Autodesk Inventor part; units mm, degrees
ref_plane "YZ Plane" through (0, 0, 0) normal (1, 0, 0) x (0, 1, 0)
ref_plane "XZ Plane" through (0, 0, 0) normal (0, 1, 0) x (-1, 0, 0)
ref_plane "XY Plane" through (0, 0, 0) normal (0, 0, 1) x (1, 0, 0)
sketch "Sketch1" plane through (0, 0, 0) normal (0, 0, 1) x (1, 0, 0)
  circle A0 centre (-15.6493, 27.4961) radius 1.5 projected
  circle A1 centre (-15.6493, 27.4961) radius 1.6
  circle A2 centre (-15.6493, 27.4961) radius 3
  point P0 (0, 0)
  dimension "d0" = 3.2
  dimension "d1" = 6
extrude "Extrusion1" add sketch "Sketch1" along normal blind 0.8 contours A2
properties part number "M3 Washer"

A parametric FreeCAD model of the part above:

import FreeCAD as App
import Part
import Sketcher

V = App.Vector
Q = App.Units.Quantity

doc = App.newDocument("Part")
body = doc.addObject("PartDesign::Body", "Body")

# Sketch on XY plane
sketch1 = body.newObject("Sketcher::SketchObject", "Sketch")
sketch1.AttachmentSupport = (doc.getObject("XY_Plane"), [""])
sketch1.MapMode = "FlatFace"
sketch1.addGeometry(Part.Circle(V(-15.6493, 27.4961, 0), V(0, 0, 1), 3), False)
sketch1.addGeometry(Part.Circle(V(-15.6493, 27.4961, 0), V(0, 0, 1), 1.6), False)
sketch1.addConstraint(Sketcher.Constraint("Coincident", 1, 3, 0, 3))
sketch1.addConstraint(Sketcher.Constraint("Diameter", 0, Q("6 mm")))
sketch1.addConstraint(Sketcher.Constraint("Diameter", 1, Q("3.2 mm")))
sketch1.addConstraint(Sketcher.Constraint("DistanceY", -1, 1, 0, 3, Q("27.496 mm")))
sketch1.addConstraint(Sketcher.Constraint("DistanceX", 0, 3, -1, 1, Q("15.6493 mm")))
pad1 = body.newObject("PartDesign::Pad", "Pad")
pad1.Profile = sketch1
pad1.Length = 0.8

doc.recompute()
